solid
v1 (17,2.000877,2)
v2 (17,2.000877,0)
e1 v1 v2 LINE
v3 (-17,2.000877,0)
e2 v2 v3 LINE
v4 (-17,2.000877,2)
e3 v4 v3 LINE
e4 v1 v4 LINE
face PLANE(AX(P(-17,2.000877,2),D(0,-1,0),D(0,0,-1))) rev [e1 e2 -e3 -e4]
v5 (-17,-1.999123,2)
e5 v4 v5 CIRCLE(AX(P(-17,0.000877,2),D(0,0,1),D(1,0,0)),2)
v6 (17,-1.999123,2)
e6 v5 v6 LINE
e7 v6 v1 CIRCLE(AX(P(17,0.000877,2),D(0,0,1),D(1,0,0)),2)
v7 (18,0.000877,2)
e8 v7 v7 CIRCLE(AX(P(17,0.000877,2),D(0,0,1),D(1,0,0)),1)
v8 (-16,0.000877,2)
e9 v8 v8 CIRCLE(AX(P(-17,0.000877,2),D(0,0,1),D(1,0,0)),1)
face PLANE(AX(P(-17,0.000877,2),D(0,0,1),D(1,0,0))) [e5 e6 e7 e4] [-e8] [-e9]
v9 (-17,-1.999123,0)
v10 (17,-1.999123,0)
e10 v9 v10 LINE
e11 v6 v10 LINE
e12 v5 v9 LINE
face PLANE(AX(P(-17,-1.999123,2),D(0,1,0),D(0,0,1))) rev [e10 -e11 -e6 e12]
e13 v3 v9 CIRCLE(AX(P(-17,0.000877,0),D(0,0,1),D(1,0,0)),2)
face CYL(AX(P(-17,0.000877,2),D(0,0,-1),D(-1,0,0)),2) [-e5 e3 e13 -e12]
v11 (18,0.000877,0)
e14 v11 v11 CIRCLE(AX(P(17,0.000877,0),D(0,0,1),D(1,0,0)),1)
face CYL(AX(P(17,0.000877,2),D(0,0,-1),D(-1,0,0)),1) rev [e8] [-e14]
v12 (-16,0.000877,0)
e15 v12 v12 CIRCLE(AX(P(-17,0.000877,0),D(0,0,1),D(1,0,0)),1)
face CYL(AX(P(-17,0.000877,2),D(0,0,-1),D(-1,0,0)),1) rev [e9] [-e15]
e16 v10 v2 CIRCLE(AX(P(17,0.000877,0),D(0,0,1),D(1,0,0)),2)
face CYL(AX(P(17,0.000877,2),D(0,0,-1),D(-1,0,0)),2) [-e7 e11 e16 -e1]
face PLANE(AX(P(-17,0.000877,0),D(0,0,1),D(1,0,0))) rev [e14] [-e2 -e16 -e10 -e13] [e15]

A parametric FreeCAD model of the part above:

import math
import FreeCAD as App
import Part
import Sketcher
Q = App.Units.Quantity

doc = App.newDocument("Part")
body = doc.addObject("PartDesign::Body", "Body")

# Sketch on XY plane
sketch1 = body.newObject("Sketcher::SketchObject", "Sketch")
sketch1.AttachmentSupport = (doc.getObject("XY_Plane"), [""])
sketch1.MapMode = "FlatFace"
sketch1.addGeometry([
    Part.LineSegment(App.Vector(17, 2, 0), App.Vector(-17, 2, 0)),  # 0
    Part.ArcOfCircle(Part.Circle(App.Vector(-17, 0, 0), App.Vector(0, 0, 1), 2), math.radians(90), math.radians(270)),  # 1
    Part.LineSegment(App.Vector(-17, -2, 0), App.Vector(17, -2, 0)),  # 2
    Part.ArcOfCircle(Part.Circle(App.Vector(17, 0, 0), App.Vector(0, 0, 1), 2), math.radians(-90), math.radians(90)),  # 3
    Part.Circle(App.Vector(17, 0, 0), App.Vector(0, 0, 1), 1),  # 4
    Part.Circle(App.Vector(-17, 0, 0), App.Vector(0, 0, 1), 1),  # 5
], False)
sketch1.addConstraint([
    Sketcher.Constraint("Tangent", 0, 2, 1, 1),
    Sketcher.Constraint("Tangent", 1, 2, 2, 1),
    Sketcher.Constraint("Tangent", 2, 2, 3, 1),
    Sketcher.Constraint("Tangent", 3, 2, 0, 1),
    Sketcher.Constraint("Horizontal", 0),
    Sketcher.Constraint("Horizontal", 2),
    Sketcher.Constraint("Coincident", 4, 3, 3, 3),
    Sketcher.Constraint("Coincident", 5, 3, 1, 3),
    Sketcher.Constraint("Equal", 4, 5),
    Sketcher.Constraint("Diameter", 4, Q("2 mm")),
    Sketcher.Constraint("Radius", 1, Q("2 mm")),
    Sketcher.Constraint("DistanceX", 0, 2, 0, 1, Q("34 mm")),
    Sketcher.Constraint("DistanceX", 1, 3, -1, 1, Q("17 mm")),
    Sketcher.Constraint("DistanceY", -1, 1, 1, 3, Q("0.000877 mm")),
])
pad1 = body.newObject("PartDesign::Pad", "Pad")
pad1.Profile = sketch1
pad1.Length = 2

doc.recompute()
